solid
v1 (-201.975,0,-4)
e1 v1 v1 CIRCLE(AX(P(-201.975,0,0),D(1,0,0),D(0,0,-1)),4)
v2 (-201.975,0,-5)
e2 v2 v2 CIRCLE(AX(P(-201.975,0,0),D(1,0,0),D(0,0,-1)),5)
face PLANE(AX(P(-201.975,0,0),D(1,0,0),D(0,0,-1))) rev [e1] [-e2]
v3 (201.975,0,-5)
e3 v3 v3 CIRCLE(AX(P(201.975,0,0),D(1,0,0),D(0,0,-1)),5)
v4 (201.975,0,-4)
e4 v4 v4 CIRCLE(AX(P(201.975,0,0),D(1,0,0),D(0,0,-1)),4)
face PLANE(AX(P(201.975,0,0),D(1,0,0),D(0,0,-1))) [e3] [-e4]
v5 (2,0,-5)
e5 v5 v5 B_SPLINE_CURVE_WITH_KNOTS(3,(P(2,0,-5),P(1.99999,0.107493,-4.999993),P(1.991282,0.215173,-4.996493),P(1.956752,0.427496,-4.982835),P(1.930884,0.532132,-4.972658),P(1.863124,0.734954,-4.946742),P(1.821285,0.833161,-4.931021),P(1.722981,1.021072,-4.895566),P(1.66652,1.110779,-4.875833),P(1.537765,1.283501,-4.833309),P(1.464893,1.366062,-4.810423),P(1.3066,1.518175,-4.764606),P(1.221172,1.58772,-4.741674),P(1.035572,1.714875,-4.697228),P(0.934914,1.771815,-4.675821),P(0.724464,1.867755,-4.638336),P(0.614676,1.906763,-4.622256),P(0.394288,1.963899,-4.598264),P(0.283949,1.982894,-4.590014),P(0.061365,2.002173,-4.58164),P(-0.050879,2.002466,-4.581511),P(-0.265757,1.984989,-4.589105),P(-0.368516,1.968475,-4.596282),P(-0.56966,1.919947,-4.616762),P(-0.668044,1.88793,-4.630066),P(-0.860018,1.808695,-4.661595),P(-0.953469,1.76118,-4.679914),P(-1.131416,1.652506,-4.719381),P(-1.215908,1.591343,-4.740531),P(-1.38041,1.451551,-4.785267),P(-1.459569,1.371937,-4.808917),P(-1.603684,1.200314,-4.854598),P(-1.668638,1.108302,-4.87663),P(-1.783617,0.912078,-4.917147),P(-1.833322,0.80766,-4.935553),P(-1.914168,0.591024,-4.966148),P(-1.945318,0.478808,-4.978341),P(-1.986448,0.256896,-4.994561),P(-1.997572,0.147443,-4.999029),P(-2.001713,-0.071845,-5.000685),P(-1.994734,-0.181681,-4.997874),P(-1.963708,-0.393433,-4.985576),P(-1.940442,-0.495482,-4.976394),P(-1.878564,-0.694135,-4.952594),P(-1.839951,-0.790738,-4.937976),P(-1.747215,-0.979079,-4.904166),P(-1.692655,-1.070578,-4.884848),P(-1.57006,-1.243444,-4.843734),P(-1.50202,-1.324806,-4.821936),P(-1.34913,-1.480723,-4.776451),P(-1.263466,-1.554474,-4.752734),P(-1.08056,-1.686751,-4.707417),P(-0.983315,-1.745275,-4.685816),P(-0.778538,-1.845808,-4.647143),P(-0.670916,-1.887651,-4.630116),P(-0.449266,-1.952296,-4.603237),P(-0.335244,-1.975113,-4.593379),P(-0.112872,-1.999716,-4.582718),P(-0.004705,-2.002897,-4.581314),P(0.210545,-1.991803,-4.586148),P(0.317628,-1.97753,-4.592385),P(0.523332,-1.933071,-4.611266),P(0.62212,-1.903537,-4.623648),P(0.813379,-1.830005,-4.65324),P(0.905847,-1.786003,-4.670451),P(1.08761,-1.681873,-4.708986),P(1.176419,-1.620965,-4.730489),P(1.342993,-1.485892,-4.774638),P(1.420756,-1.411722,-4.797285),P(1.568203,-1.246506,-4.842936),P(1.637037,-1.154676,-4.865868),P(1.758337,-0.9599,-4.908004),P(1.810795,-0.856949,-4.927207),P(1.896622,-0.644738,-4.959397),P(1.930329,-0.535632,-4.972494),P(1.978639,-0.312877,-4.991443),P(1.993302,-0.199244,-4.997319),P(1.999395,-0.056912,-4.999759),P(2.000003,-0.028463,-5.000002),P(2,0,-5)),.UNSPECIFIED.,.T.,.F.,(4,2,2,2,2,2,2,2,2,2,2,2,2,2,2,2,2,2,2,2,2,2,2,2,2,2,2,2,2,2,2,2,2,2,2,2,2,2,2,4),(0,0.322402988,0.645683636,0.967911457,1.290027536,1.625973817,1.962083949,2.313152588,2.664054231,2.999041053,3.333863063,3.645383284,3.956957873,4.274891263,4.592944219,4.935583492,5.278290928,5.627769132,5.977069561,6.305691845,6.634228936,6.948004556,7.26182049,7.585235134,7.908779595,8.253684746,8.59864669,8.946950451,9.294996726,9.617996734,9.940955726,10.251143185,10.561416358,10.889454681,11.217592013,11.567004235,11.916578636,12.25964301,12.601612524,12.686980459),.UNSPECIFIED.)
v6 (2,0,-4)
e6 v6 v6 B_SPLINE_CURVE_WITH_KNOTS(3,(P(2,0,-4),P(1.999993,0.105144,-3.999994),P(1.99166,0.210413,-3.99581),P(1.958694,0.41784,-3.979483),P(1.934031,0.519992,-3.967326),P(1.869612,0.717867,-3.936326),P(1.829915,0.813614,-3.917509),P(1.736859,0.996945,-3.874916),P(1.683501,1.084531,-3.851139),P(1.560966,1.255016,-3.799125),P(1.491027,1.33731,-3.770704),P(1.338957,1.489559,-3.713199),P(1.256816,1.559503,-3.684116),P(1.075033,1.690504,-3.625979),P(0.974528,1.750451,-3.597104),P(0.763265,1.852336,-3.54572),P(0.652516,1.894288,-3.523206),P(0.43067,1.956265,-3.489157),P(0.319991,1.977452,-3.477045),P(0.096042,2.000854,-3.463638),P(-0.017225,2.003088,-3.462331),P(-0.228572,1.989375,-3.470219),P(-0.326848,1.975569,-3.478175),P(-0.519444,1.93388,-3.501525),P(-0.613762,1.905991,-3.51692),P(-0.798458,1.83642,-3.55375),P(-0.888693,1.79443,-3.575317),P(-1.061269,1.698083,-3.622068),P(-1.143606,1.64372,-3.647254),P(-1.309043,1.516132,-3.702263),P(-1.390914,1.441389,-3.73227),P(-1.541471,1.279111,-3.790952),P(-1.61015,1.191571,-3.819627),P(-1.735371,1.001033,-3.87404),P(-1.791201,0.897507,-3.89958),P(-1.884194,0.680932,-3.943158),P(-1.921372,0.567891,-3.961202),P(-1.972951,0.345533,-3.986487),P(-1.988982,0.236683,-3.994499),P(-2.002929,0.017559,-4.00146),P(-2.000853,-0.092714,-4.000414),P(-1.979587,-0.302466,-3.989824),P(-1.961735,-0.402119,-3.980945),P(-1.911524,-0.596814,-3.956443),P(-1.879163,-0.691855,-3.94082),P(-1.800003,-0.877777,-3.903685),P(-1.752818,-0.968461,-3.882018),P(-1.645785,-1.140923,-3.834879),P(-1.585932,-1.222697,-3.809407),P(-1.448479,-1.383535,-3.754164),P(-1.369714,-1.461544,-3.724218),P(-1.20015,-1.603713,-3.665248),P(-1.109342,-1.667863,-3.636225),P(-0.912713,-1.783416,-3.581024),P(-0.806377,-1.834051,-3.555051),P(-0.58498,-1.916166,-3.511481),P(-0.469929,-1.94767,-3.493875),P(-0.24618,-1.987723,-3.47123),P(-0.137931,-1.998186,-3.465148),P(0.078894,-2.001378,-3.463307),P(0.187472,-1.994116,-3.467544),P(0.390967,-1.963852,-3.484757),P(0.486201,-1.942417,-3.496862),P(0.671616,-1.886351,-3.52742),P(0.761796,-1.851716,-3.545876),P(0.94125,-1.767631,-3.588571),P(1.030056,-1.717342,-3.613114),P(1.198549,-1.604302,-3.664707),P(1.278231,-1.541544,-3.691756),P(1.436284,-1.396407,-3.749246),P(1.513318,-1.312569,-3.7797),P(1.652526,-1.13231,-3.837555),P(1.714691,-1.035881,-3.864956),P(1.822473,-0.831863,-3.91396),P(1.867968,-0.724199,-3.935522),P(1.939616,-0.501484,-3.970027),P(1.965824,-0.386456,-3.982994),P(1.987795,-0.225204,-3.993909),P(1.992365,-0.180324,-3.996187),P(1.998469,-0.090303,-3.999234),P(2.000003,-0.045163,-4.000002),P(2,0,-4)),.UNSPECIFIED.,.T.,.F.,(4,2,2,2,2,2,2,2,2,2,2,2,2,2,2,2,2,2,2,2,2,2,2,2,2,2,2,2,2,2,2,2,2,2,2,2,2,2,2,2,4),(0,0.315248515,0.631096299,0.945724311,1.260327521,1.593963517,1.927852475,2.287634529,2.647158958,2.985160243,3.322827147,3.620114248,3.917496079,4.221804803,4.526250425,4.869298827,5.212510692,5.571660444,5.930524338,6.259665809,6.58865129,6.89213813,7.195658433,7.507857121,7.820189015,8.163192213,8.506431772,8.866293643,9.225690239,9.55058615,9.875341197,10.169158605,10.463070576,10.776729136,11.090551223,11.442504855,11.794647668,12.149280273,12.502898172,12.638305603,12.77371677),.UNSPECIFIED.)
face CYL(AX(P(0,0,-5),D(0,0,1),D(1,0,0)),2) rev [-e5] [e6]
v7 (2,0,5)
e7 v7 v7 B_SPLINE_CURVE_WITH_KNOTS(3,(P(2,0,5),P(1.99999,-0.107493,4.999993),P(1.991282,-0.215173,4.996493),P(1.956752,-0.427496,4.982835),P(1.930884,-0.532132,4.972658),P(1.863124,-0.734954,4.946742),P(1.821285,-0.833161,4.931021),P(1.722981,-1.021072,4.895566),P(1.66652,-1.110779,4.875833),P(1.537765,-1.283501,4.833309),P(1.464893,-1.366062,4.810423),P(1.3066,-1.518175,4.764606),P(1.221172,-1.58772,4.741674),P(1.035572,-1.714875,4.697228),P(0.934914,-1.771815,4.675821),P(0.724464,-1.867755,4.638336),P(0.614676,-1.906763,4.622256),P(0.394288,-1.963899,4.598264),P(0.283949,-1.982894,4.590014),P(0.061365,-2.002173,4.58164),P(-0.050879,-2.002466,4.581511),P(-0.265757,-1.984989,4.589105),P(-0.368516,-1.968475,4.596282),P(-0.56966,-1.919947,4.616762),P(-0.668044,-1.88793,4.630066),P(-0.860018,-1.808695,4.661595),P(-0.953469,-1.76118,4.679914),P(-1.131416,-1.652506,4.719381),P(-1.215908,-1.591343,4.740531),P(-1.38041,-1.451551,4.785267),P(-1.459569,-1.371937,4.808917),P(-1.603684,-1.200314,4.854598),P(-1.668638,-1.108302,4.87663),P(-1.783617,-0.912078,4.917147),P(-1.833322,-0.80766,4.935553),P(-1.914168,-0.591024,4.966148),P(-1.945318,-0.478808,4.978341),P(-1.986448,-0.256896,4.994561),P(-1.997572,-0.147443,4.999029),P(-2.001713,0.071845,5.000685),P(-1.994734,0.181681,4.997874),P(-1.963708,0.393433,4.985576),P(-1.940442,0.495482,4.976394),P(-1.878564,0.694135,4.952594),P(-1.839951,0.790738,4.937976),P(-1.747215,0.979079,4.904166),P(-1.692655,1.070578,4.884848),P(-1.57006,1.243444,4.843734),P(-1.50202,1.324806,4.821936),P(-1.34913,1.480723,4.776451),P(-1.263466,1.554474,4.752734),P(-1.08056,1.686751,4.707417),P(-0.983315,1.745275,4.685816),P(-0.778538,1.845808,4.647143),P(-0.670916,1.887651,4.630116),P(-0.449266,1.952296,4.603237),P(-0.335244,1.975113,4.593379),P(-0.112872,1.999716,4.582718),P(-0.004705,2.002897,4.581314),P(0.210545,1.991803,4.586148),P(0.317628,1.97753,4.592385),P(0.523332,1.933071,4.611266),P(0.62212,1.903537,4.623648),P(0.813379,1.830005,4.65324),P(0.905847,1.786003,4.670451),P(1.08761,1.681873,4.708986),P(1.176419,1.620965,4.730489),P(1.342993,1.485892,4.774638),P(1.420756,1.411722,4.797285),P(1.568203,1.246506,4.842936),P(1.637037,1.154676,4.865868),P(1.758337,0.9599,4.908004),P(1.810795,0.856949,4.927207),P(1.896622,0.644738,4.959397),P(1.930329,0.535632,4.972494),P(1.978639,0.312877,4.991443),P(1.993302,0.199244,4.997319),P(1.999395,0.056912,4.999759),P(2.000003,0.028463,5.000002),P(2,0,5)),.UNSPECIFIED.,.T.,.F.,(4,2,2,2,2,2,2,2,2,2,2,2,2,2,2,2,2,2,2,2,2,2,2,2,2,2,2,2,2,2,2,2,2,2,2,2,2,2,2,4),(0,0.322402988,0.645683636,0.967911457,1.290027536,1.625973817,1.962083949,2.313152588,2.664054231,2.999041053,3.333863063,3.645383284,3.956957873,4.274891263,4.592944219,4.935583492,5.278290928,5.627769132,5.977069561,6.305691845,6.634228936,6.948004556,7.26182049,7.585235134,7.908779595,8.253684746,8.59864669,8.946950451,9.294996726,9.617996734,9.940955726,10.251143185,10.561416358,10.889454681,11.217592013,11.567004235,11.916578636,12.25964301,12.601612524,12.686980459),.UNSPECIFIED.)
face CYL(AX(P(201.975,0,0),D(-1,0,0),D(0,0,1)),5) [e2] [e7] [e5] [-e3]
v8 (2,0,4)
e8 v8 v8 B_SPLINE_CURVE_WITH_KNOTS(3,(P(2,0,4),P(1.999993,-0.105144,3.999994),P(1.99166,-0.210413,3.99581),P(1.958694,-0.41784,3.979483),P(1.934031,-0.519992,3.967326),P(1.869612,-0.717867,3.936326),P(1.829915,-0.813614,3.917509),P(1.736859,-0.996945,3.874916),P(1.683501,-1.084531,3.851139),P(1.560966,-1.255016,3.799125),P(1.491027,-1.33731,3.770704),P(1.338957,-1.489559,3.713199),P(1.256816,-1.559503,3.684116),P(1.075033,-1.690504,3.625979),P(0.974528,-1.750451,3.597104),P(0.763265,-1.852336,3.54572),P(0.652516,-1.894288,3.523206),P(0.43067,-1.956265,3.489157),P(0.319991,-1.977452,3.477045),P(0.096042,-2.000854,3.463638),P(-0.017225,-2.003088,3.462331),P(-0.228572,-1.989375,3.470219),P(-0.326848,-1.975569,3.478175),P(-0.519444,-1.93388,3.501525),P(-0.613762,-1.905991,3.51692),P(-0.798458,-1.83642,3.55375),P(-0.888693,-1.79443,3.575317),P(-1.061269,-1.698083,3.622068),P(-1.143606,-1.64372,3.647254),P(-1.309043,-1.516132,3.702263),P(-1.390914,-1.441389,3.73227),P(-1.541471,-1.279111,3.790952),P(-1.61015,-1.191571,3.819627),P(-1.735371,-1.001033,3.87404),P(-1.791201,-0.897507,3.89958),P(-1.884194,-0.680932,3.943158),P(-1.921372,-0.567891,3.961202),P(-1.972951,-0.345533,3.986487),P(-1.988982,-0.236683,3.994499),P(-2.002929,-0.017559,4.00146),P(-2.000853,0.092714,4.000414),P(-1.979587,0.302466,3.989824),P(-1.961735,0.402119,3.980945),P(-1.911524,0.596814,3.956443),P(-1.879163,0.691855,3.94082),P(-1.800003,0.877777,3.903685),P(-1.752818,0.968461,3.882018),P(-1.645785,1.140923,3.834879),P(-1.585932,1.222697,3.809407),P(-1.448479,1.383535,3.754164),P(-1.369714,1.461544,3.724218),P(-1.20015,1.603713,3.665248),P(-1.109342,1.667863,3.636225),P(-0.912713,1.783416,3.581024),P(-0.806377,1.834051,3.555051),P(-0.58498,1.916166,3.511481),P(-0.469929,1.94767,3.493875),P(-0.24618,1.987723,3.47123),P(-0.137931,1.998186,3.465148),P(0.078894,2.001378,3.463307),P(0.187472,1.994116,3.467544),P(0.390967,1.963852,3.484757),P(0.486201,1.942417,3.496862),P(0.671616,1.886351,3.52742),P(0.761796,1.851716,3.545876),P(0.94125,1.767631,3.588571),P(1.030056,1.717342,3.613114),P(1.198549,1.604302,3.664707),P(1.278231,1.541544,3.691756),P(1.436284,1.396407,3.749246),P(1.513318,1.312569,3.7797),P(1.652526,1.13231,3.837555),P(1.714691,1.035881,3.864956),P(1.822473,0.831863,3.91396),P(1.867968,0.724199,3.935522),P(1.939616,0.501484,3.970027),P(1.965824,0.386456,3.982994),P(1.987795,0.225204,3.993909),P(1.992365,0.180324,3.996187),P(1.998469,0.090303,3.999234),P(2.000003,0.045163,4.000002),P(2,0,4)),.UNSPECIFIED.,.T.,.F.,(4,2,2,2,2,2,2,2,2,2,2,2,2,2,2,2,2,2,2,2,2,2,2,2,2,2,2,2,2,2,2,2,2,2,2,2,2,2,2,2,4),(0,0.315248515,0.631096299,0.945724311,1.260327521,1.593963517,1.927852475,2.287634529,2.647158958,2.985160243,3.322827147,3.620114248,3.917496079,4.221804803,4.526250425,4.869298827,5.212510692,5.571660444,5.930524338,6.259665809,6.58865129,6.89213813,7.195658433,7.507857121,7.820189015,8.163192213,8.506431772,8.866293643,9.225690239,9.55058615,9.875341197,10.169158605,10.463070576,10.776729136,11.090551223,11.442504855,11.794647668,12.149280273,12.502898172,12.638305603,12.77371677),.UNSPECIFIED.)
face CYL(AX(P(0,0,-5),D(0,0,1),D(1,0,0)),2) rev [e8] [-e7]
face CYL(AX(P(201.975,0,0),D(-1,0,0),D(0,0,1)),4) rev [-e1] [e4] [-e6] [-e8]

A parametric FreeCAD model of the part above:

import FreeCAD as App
import Part
import Sketcher

doc = App.newDocument("Part")
body = doc.addObject("PartDesign::Body", "Body")

sketch1 = doc.addObject("Sketcher::SketchObject", "Sketch")
body.addObject(sketch1)
sketch1.AttachmentSupport = (doc.YZ_Plane, [""])
sketch1.MapMode = "FlatFace"
sketch1.addGeometry([
    Part.Circle(App.Vector(0, 0, 0), App.Vector(0, 0, 1), 5),
    Part.Circle(App.Vector(0, 0, 0), App.Vector(0, 0, 1), 4),
], False)
sketch1.addConstraint([
    Sketcher.Constraint("Coincident", 0, 3, -1, 1),
    Sketcher.Constraint("Coincident", 1, 3, -1, 1),
    Sketcher.Constraint("Diameter", 0, 10.0),
    Sketcher.Constraint("Diameter", 1, 8.0),
])
pad1 = doc.addObject("PartDesign::Pad", "Pad")
body.addObject(pad1)
pad1.Profile = sketch1
pad1.Length = 403.95
pad1.Midplane = True

sketch2 = doc.addObject("Sketcher::SketchObject", "Sketch001")
body.addObject(sketch2)
sketch2.AttachmentSupport = (doc.XY_Plane, [""])
sketch2.MapMode = "FlatFace"
sketch2.addGeometry(Part.Circle(App.Vector(0, 0, 0), App.Vector(0, 0, 1), 2), False)
sketch2.addConstraint([
    Sketcher.Constraint("Coincident", 0, 3, -1, 1),
    Sketcher.Constraint("Diameter", 0, 4.0),
])
pocket1 = doc.addObject("PartDesign::Pocket", "Pocket")
body.addObject(pocket1)
pocket1.Profile = sketch2
pocket1.Type = "ThroughAll"
pocket1.Midplane = True

doc.recompute()
